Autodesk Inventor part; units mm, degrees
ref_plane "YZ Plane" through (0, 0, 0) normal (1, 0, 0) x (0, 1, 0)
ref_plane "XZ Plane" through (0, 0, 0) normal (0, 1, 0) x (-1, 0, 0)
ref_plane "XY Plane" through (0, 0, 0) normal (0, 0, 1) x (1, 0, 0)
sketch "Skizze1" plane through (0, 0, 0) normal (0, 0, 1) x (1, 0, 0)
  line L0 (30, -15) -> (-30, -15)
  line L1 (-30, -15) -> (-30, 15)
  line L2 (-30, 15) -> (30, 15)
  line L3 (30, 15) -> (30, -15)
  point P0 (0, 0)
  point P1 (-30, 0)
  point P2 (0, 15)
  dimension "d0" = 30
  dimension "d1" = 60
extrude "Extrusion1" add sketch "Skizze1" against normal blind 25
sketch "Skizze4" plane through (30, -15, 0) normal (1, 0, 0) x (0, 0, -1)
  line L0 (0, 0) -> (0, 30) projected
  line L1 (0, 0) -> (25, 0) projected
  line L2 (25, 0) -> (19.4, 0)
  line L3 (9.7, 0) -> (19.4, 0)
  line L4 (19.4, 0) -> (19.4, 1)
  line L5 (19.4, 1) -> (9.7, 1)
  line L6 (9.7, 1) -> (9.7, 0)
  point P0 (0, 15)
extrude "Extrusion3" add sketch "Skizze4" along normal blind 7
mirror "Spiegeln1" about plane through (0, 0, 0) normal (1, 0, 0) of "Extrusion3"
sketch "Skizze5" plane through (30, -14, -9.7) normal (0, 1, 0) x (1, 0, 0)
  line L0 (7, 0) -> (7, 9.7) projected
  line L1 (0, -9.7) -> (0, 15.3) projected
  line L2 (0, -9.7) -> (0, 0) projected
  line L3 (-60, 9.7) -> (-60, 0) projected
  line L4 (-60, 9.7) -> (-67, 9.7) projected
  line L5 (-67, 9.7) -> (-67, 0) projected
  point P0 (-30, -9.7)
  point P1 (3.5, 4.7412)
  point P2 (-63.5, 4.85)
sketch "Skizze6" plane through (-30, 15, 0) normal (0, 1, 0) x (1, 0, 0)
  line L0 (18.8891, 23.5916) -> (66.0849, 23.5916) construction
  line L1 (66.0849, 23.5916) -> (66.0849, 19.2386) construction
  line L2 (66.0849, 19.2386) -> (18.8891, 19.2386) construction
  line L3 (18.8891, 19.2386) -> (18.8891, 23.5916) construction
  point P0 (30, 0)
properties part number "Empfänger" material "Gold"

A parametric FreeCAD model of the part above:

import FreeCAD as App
import Part
import Sketcher


def add_polygon(sketch, points):
    """Adds a closed chain of lines whose ends are joined by coincident constraints."""
    first, n = sketch.GeometryCount, len(points)
    for a, b in zip(points, points[1:] + points[:1]):
        sketch.addGeometry(Part.LineSegment(App.Vector(*a, 0), App.Vector(*b, 0)), False)
    for i in range(n):
        sketch.addConstraint(Sketcher.Constraint("Coincident", first + i, 2, first + (i + 1) % n, 1))

doc = App.newDocument("Part")
body = doc.addObject("PartDesign::Body", "Body")

# Sketch on XY plane
sketch1 = body.newObject("Sketcher::SketchObject", "Sketch")
sketch1.AttachmentSupport = (doc.getObject("XY_Plane"), [""])
sketch1.MapMode = "FlatFace"
add_polygon(sketch1, [(-30, -15), (30, -15), (30, 15), (-30, 15)])  # lines 0-3
sketch1.addConstraint(Sketcher.Constraint("Horizontal", 0))
sketch1.addConstraint(Sketcher.Constraint("Vertical", 1))
sketch1.addConstraint(Sketcher.Constraint("Horizontal", 2))
sketch1.addConstraint(Sketcher.Constraint("Vertical", 3))
sketch1.addConstraint(Sketcher.Constraint("Symmetric", 0, 2, 2, 2, -1, 1))
sketch1.addConstraint(Sketcher.Constraint("DistanceX", 0, 1, 0, 2, 60.0))
sketch1.addConstraint(Sketcher.Constraint("DistanceY", 1, 1, 1, 2, 30.0))
pad1 = body.newObject("PartDesign::Pad", "Pad")
pad1.Profile = sketch1
pad1.Length = 25
pad1.Reversed = True

# Sketch on YZ plane
sketch2 = body.newObject("Sketcher::SketchObject", "Sketch001")
sketch2.AttachmentSupport = (doc.getObject("YZ_Plane"), [""])
sketch2.MapMode = "FlatFace"
sketch2.AttachmentOffset = App.Placement(App.Vector(0, 0, 30), App.Rotation())
add_polygon(sketch2, [(-14, -9.7), (-15, -9.7), (-15, -19.4), (-14, -19.4)])  # lines 0-3
sketch2.addConstraint(Sketcher.Constraint("Horizontal", 0))
sketch2.addConstraint(Sketcher.Constraint("Vertical", 1))
sketch2.addConstraint(Sketcher.Constraint("Horizontal", 2))
sketch2.addConstraint(Sketcher.Constraint("Vertical", 3))
sketch2.addConstraint(Sketcher.Constraint("DistanceX", 0, 2, 0, 1, 1.0))
sketch2.addConstraint(Sketcher.Constraint("DistanceY", 1, 2, 1, 1, 9.7))
sketch2.addConstraint(Sketcher.Constraint("DistanceX", 0, 2, -1, 1, 15.0))
sketch2.addConstraint(Sketcher.Constraint("DistanceY", 0, 2, -1, 1, 9.7))
pad2 = body.newObject("PartDesign::Pad", "Pad001")
pad2.Profile = sketch2
pad2.Length = 7
doc.recompute()

mirrored = body.newObject("PartDesign::Mirrored", "Mirrored")
mirrored.Originals = [pad2]
mirrored.MirrorPlane = (doc.getObject("YZ_Plane"), [""])
body.Tip = mirrored

doc.recompute()
